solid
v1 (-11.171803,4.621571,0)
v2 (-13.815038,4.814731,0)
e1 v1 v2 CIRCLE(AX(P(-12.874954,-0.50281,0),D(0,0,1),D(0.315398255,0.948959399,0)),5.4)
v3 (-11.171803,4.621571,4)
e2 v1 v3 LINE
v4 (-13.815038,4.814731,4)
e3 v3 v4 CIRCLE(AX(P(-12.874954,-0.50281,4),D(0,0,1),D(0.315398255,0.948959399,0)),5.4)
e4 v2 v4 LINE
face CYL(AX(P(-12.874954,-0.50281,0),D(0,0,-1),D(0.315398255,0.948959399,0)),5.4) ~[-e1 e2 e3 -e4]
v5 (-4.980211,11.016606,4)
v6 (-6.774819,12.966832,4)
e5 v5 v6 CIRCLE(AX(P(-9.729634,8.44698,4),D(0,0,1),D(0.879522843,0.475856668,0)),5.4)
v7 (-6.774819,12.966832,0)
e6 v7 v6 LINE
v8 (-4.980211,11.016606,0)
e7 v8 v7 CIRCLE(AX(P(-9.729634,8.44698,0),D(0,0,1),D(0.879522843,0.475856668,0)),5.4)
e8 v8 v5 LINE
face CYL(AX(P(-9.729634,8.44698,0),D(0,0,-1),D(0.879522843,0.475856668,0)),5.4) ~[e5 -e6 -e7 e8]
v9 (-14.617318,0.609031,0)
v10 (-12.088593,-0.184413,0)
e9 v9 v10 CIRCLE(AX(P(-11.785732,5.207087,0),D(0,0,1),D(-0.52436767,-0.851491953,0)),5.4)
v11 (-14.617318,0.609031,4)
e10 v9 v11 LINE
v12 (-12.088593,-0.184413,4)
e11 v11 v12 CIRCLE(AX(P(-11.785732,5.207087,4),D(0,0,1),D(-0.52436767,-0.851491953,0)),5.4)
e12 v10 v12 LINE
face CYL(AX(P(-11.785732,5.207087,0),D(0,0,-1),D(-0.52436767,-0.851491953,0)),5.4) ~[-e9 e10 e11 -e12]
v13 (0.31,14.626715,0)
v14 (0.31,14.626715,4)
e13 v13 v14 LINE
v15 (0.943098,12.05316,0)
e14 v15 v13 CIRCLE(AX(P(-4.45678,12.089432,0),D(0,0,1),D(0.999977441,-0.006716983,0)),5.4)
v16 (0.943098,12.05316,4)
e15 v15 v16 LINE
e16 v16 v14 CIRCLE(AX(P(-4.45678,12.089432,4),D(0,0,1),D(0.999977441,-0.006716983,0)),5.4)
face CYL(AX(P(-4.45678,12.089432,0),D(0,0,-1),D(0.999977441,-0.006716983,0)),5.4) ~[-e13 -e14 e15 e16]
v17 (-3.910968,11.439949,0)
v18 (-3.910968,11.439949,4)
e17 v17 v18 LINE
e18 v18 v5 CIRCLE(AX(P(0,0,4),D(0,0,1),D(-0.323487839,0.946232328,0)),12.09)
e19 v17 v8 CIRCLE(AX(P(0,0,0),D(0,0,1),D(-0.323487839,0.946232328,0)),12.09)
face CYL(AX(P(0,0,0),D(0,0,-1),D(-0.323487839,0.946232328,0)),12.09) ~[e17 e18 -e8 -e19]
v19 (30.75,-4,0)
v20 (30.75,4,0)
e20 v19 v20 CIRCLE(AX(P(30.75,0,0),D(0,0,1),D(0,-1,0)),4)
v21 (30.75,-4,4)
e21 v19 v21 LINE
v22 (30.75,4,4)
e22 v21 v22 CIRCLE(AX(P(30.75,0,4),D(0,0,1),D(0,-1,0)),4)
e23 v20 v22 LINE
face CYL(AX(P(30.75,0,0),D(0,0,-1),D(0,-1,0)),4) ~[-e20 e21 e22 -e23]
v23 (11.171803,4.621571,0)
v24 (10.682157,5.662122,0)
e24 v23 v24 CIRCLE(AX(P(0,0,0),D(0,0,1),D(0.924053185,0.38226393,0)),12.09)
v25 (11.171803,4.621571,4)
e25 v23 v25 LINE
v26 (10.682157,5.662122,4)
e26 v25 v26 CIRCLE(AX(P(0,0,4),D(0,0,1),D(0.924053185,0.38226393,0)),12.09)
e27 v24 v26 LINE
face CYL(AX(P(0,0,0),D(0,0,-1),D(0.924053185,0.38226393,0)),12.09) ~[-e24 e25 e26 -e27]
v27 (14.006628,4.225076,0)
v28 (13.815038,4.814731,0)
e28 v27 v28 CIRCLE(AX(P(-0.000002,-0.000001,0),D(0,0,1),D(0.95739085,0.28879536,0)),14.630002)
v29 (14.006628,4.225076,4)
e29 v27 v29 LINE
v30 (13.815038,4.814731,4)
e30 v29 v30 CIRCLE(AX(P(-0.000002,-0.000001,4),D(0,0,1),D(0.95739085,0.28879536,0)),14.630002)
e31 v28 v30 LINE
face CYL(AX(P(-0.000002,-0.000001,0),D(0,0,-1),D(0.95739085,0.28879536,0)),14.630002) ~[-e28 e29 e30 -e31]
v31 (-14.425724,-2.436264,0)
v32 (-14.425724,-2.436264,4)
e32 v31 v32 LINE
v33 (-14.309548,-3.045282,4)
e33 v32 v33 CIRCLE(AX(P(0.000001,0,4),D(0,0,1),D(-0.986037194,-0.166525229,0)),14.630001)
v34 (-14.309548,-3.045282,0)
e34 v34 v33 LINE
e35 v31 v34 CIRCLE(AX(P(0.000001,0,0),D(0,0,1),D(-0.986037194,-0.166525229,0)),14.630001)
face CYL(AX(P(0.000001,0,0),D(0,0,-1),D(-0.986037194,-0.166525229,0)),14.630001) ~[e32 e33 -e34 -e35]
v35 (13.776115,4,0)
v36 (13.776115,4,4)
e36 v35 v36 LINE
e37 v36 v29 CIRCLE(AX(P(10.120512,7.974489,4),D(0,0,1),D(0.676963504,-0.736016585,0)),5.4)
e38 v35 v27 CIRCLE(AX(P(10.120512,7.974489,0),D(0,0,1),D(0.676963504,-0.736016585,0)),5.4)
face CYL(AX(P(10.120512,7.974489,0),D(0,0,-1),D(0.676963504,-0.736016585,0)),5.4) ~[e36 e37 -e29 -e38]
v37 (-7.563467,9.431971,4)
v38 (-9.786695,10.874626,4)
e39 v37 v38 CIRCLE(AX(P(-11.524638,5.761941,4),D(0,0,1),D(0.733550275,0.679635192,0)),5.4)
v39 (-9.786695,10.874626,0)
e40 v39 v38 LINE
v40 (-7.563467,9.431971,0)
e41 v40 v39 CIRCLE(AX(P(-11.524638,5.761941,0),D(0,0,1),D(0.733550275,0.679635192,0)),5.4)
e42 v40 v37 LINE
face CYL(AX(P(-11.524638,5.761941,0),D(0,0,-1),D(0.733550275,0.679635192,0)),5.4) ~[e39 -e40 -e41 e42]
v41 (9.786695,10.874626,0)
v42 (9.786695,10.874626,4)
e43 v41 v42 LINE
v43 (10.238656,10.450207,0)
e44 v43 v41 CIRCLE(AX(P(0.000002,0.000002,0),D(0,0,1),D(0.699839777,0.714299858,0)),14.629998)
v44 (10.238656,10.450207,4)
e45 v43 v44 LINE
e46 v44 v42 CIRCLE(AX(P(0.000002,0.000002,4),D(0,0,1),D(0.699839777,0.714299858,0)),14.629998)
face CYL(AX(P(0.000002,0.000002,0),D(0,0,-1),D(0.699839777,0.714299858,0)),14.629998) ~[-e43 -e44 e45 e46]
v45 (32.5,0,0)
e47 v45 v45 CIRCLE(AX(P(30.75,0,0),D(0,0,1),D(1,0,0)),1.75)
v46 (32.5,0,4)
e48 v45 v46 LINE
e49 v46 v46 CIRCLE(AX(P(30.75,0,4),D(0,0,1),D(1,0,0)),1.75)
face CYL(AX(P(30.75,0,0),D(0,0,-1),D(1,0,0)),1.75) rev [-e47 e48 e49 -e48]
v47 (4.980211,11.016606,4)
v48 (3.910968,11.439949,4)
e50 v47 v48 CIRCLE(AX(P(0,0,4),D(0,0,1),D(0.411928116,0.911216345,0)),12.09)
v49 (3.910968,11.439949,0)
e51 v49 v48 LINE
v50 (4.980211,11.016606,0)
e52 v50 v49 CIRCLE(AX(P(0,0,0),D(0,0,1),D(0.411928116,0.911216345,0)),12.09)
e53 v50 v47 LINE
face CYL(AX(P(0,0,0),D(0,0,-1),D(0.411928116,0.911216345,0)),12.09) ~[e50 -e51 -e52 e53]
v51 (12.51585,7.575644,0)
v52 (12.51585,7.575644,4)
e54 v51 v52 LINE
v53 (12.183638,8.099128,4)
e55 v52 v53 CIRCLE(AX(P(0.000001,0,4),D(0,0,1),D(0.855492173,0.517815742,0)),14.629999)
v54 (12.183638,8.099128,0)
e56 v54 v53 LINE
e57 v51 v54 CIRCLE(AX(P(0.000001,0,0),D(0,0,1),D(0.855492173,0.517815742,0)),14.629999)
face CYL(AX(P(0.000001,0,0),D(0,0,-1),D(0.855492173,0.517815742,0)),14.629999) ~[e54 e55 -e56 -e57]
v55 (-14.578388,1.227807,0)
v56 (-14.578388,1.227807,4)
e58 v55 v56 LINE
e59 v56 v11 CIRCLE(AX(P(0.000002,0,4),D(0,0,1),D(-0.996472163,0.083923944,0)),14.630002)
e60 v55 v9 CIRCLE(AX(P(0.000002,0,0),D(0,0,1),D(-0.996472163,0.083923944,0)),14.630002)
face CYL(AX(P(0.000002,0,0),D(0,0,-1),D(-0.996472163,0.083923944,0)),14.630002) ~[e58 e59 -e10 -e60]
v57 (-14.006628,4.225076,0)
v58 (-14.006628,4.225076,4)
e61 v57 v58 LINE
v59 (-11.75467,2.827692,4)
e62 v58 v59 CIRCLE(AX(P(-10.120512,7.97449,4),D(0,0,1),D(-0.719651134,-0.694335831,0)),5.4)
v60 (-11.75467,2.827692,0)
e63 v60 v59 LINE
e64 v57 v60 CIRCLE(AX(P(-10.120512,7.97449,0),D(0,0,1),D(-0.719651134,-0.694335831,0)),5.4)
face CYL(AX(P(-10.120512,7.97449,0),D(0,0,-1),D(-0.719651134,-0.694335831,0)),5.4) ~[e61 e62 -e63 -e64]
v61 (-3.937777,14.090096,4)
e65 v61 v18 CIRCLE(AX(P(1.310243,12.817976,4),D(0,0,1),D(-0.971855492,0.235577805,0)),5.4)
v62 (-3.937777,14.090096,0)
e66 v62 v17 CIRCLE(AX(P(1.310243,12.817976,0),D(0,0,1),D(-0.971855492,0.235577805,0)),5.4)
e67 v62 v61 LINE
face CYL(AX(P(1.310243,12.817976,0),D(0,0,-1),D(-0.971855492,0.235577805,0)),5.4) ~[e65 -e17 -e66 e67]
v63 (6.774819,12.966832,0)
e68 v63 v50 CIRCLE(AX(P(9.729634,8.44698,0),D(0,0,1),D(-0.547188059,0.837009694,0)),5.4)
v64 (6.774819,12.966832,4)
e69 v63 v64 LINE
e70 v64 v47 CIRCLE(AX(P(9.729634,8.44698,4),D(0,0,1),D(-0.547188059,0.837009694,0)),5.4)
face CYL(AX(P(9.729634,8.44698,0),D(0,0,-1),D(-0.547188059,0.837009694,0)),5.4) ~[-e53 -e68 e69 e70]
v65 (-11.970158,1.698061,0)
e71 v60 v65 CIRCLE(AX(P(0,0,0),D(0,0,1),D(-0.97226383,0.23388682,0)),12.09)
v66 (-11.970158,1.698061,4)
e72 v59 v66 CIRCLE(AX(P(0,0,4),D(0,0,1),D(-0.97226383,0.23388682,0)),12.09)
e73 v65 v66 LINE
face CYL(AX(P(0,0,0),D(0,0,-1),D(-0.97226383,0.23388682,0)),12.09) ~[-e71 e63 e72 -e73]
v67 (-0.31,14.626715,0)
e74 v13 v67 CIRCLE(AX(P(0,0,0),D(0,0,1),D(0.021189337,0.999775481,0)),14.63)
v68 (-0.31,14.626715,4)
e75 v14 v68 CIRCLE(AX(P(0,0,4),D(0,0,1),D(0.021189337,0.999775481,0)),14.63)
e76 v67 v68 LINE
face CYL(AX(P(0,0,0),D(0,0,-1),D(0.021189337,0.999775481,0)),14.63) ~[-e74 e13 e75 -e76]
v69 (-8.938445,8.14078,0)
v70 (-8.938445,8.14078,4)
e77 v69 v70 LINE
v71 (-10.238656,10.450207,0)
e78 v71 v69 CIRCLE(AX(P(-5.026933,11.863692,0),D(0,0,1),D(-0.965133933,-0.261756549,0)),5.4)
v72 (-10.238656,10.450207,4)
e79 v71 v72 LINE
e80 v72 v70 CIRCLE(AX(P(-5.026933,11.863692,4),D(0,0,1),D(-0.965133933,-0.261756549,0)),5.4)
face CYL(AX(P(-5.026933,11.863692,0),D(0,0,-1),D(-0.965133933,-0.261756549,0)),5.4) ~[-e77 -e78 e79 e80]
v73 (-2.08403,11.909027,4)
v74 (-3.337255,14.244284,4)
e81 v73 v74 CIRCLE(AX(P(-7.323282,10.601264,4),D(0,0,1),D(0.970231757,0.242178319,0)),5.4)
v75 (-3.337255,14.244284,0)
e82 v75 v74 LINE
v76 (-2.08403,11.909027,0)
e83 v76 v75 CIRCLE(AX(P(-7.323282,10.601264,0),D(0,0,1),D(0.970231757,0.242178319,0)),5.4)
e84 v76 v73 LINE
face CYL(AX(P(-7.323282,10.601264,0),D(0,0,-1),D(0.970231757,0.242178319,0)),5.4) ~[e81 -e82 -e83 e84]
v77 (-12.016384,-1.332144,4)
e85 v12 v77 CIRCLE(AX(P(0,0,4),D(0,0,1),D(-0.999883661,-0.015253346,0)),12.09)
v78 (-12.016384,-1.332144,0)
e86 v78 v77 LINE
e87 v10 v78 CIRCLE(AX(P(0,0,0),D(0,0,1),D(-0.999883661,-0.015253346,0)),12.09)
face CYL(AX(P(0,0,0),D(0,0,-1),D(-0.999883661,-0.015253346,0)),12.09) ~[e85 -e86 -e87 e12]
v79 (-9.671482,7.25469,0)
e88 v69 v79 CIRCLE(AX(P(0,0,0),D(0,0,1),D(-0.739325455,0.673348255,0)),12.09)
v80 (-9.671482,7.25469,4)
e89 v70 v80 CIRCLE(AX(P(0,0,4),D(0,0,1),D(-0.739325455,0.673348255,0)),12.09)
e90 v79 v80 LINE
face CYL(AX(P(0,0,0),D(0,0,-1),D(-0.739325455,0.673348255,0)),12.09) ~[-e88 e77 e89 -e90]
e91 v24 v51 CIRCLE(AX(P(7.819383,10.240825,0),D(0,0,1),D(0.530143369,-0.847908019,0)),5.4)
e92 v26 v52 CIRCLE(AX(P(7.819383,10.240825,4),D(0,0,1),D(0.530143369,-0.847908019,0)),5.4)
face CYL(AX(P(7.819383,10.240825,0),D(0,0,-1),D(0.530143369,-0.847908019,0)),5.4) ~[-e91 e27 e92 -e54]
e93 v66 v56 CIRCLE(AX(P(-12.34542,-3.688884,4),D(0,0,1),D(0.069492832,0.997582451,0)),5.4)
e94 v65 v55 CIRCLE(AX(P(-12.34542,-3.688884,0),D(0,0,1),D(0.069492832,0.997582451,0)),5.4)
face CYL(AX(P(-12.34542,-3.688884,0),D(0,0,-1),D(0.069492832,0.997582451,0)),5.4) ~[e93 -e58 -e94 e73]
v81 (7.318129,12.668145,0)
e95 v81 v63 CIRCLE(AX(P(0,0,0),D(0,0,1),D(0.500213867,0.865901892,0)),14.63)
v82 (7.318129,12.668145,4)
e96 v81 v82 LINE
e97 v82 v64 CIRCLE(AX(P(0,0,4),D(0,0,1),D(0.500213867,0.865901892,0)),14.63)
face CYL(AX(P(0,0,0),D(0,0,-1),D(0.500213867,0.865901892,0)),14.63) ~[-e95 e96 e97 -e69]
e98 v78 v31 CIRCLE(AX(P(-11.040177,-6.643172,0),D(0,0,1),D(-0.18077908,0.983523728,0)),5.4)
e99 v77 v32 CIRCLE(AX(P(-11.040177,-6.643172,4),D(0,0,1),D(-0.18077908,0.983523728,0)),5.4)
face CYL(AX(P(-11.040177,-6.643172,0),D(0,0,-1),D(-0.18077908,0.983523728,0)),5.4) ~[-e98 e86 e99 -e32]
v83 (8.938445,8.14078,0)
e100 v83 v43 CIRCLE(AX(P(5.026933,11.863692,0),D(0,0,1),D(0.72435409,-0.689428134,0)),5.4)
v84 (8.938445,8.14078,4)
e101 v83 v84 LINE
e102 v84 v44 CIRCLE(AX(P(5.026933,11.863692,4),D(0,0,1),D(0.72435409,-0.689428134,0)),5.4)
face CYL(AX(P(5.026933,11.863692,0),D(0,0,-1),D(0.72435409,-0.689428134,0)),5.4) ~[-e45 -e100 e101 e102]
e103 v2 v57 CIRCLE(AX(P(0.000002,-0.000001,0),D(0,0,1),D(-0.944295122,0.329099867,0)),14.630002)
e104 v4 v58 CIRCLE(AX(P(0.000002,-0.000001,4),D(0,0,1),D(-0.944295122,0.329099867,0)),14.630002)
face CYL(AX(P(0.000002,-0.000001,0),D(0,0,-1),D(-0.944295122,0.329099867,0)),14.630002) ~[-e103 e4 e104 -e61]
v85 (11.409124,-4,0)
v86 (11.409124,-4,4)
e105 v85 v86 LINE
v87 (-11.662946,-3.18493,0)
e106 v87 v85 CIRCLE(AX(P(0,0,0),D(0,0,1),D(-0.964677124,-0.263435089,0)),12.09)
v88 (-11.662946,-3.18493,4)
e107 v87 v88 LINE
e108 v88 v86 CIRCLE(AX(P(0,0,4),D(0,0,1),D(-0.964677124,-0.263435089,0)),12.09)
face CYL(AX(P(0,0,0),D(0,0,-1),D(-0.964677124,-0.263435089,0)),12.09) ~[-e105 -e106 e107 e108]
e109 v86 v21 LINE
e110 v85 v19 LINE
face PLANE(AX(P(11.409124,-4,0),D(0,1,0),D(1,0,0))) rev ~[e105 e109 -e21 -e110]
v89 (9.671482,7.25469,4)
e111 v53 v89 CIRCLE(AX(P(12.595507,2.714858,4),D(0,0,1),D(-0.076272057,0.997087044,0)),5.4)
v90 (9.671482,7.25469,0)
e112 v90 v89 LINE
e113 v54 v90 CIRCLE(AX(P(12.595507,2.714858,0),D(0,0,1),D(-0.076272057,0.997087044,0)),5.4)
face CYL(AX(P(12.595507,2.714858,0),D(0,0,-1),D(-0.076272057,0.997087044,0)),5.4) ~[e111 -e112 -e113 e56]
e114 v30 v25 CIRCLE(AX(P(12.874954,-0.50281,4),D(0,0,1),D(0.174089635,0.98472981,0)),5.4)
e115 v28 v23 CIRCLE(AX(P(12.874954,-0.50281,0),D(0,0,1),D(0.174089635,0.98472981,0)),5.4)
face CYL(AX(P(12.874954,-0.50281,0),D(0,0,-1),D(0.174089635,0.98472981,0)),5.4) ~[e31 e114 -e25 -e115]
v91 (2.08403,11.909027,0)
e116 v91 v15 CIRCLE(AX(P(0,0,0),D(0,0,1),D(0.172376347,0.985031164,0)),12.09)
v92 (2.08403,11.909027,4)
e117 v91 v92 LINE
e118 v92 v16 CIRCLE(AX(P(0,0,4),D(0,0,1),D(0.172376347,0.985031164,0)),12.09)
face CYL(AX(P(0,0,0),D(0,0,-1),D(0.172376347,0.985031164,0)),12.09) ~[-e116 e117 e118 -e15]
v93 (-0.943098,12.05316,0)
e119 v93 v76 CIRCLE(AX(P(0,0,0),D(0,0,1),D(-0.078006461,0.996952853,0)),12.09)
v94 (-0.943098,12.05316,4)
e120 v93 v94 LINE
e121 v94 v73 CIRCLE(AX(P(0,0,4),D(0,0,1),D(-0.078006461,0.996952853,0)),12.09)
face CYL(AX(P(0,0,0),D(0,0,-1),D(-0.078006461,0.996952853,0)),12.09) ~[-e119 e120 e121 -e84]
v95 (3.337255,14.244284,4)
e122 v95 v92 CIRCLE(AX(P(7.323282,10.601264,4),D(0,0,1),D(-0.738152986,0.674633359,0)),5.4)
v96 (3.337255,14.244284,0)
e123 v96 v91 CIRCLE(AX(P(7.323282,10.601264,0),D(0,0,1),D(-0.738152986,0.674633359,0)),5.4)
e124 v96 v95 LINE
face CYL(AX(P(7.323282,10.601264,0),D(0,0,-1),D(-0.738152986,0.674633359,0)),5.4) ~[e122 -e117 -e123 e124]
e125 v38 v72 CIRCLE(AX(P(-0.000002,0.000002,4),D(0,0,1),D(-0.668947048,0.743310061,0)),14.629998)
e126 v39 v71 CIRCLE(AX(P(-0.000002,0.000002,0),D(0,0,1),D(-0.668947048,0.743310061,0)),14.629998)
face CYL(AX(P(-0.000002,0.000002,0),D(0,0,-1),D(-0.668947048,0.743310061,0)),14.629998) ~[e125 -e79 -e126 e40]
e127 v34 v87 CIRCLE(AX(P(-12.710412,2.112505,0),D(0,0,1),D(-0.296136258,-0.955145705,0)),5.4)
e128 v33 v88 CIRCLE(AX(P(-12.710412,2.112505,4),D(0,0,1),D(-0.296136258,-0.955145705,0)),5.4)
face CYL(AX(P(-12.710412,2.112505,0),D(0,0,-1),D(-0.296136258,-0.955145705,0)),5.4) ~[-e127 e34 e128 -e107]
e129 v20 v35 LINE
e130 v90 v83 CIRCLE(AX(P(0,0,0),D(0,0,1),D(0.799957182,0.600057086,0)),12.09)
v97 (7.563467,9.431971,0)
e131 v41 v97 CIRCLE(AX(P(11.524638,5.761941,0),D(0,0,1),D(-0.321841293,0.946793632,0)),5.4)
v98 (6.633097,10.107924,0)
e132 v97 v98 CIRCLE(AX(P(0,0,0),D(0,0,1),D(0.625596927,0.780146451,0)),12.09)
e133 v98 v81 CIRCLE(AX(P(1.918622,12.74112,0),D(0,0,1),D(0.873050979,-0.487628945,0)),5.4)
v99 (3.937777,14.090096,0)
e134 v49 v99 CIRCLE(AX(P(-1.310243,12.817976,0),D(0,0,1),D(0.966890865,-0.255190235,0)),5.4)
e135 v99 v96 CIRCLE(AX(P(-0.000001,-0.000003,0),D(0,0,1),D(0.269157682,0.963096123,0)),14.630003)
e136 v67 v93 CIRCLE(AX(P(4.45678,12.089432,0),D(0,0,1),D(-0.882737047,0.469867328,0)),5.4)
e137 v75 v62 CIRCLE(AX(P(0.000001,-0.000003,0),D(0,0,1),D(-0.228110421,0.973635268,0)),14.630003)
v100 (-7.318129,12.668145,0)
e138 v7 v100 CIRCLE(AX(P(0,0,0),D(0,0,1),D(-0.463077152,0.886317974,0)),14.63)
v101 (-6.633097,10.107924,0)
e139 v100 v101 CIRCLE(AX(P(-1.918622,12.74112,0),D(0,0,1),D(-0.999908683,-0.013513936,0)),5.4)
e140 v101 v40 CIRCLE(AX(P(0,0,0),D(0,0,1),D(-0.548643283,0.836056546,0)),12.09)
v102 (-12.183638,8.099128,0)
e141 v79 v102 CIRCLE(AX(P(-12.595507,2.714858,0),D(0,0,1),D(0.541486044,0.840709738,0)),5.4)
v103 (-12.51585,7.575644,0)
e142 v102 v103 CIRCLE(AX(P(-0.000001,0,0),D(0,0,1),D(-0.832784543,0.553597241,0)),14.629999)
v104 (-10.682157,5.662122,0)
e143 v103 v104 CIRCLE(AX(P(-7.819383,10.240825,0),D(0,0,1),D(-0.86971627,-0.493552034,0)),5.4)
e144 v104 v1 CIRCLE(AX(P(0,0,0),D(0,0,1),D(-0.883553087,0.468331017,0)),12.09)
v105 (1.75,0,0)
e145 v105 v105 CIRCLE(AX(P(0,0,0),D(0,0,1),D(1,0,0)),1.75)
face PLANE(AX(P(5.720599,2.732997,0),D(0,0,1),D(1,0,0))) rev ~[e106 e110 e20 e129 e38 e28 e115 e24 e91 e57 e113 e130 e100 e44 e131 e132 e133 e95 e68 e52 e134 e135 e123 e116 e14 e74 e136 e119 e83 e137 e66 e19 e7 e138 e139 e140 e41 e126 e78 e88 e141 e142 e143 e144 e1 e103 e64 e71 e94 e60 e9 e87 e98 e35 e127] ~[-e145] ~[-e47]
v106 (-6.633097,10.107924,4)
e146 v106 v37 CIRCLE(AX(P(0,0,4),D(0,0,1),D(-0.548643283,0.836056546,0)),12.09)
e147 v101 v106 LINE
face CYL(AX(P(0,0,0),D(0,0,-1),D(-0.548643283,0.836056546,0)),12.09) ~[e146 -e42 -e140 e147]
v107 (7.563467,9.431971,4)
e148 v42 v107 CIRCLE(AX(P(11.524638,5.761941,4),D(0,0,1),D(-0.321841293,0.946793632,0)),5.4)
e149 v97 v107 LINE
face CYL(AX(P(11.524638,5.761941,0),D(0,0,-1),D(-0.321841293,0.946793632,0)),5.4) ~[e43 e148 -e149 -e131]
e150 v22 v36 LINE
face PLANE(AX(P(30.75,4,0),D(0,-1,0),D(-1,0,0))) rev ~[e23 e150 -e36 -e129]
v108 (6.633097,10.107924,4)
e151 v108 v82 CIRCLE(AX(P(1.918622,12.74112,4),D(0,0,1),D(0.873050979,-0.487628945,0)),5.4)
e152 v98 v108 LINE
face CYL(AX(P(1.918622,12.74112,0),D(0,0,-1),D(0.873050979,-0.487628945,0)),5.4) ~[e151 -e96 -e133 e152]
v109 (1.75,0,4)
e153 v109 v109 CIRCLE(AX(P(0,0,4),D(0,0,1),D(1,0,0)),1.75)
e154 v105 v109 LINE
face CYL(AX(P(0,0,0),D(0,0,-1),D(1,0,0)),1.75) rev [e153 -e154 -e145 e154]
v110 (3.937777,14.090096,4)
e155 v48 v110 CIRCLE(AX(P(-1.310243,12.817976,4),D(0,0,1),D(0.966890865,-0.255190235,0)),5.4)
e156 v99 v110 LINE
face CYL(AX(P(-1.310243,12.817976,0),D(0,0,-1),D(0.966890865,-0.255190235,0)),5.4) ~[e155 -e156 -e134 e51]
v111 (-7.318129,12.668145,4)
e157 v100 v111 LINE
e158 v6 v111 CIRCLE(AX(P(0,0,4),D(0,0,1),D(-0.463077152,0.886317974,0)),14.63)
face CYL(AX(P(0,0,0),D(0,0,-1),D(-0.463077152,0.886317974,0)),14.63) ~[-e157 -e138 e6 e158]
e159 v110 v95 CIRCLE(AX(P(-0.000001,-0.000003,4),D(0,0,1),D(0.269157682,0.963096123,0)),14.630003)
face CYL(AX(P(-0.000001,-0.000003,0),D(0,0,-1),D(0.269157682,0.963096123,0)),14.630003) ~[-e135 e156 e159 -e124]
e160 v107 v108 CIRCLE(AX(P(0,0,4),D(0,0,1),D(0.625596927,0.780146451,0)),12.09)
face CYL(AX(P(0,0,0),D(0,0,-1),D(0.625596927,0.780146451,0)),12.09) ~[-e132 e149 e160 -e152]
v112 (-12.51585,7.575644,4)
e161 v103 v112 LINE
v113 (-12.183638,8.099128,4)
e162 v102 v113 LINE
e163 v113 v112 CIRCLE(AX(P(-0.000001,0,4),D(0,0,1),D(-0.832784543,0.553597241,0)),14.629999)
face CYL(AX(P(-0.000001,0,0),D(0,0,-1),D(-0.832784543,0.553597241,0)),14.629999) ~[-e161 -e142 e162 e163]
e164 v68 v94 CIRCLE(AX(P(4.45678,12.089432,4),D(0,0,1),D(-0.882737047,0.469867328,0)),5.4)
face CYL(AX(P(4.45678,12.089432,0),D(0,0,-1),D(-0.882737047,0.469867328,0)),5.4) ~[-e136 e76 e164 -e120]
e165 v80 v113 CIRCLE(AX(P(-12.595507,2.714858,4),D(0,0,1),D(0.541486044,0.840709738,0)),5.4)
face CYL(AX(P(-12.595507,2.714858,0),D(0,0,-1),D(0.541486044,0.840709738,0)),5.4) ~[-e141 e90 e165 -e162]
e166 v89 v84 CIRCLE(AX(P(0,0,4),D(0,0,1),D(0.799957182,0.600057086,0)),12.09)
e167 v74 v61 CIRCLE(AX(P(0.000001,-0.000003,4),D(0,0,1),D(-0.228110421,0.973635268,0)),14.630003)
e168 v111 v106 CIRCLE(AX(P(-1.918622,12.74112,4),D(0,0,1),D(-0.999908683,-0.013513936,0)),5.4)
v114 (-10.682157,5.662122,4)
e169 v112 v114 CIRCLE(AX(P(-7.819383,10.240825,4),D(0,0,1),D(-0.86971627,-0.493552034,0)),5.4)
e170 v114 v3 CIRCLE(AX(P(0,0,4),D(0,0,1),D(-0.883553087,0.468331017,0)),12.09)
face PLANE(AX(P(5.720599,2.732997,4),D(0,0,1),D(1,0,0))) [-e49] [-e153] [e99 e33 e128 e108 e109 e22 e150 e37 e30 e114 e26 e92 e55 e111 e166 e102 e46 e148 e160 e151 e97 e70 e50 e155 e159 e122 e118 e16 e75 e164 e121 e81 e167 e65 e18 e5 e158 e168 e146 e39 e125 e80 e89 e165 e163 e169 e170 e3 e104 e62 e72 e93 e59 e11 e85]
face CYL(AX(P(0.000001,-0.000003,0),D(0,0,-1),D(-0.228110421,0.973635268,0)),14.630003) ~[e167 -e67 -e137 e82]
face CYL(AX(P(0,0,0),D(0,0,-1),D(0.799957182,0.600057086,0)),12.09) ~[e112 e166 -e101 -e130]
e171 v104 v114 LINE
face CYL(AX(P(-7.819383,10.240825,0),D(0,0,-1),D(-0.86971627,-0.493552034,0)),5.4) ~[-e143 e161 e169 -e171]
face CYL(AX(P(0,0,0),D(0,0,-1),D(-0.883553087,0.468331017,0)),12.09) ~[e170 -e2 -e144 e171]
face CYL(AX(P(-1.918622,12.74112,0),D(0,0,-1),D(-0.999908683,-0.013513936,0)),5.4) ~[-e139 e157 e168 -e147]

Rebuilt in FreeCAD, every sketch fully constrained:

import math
import FreeCAD as App
import Part
import Sketcher

V = App.Vector
Q = App.Units.Quantity

doc = App.newDocument("Part")
params = doc.addObject("Spreadsheet::Sheet", "Params")
for row, (alias, value) in enumerate([
    ("sketch1_radius", "4 mm"),
    ("sketch1_diameter", "3.5 mm"),
    ("sketch1_radius2", "5.4 mm"),
    ("sketch1_radius3", "12.09 mm"),
    ("sketch1_radius4", "14.629999 mm"),
    ("pad1_length", "4 mm"),
], start=1):
    params.set(f"A{row}", alias)
    params.set(f"B{row}", "=" + value)
    params.setAlias(f"B{row}", alias)

body = doc.addObject("PartDesign::Body", "Body")

# Sketch on XY plane
sketch1 = body.newObject("Sketcher::SketchObject", "Sketch")
sketch1.AttachmentSupport = (doc.getObject("XY_Plane"), [""])
sketch1.MapMode = "FlatFace"
sketch1.addGeometry(Part.ArcOfCircle(Part.Circle(V(10.120512, 7.974489, 0), V(0, 0, 1), 5.4), math.radians(-47.393186), math.radians(-43.974315)), False)
sketch1.addGeometry(Part.ArcOfCircle(Part.Circle(V(-0.000002, -0.000001, 0), V(0, 0, 1), 14.630002), math.radians(16.78585), math.radians(19.21415)), False)
sketch1.addGeometry(Part.ArcOfCircle(Part.Circle(V(12.874954, -0.50281, 0), V(0, 0, 1), 5.4), math.radians(79.974315), math.radians(108.384858)), False)
sketch1.addGeometry(Part.ArcOfCircle(Part.Circle(V(0, 0, 0), V(0, 0, 1), 12.09), math.radians(22.473986), math.radians(27.926014)), False)
sketch1.addGeometry(Part.ArcOfCircle(Part.Circle(V(7.819383, 10.240825, 0), V(0, 0, 1), 5.4), math.radians(-57.984858), math.radians(-29.574315)), False)
sketch1.addGeometry(Part.ArcOfCircle(Part.Circle(V(0.000001, 0, 0), V(0, 0, 1), 14.629999), math.radians(31.185849), math.radians(33.614151)), False)
sketch1.addGeometry(Part.ArcOfCircle(Part.Circle(V(12.595507, 2.714858, 0), V(0, 0, 1), 5.4), math.radians(94.374315), math.radians(122.784858)), False)
sketch1.addGeometry(Part.ArcOfCircle(Part.Circle(V(0, 0, 0), V(0, 0, 1), 12.09), math.radians(36.873986), math.radians(42.326014)), False)
sketch1.addGeometry(Part.ArcOfCircle(Part.Circle(V(5.026933, 11.863692, 0), V(0, 0, 1), 5.4), math.radians(-43.584858), math.radians(-15.174315)), False)
sketch1.addGeometry(Part.ArcOfCircle(Part.Circle(V(0.000002, 0.000002, 0), V(0, 0, 1), 14.629998), math.radians(45.585849), math.radians(48.014151)), False)
sketch1.addGeometry(Part.ArcOfCircle(Part.Circle(V(11.524638, 5.761941, 0), V(0, 0, 1), 5.4), math.radians(108.774315), math.radians(137.184858)), False)
sketch1.addGeometry(Part.ArcOfCircle(Part.Circle(V(0, 0, 0), V(0, 0, 1), 12.09), math.radians(51.273986), math.radians(56.726014)), False)
sketch1.addGeometry(Part.ArcOfCircle(Part.Circle(V(1.918622, 12.74112, 0), V(0, 0, 1), 5.4), math.radians(-29.184858), math.radians(-0.774315)), False)
sketch1.addGeometry(Part.ArcOfCircle(Part.Circle(V(0, 0, 0), V(0, 0, 1), 14.63), math.radians(59.98585), math.radians(62.414151)), False)
sketch1.addGeometry(Part.ArcOfCircle(Part.Circle(V(9.729634, 8.44698, 0), V(0, 0, 1), 5.4), math.radians(123.174315), math.radians(151.584858)), False)
sketch1.addGeometry(Part.ArcOfCircle(Part.Circle(V(0, 0, 0), V(0, 0, 1), 12.09), math.radians(65.673986), math.radians(71.126014)), False)
sketch1.addGeometry(Part.ArcOfCircle(Part.Circle(V(-1.310243, 12.817976, 0), V(0, 0, 1), 5.4), math.radians(-14.784858), math.radians(13.625685)), False)
sketch1.addGeometry(Part.ArcOfCircle(Part.Circle(V(-0.000001, -0.000003, 0), V(0, 0, 1), 14.630003), math.radians(74.38585), math.radians(76.81415)), False)
sketch1.addGeometry(Part.ArcOfCircle(Part.Circle(V(7.323282, 10.601264, 0), V(0, 0, 1), 5.4), math.radians(137.574315), math.radians(165.984858)), False)
sketch1.addGeometry(Part.ArcOfCircle(Part.Circle(V(0, 0, 0), V(0, 0, 1), 12.09), math.radians(80.073986), math.radians(85.526014)), False)
sketch1.addGeometry(Part.ArcOfCircle(Part.Circle(V(-4.45678, 12.089432, 0), V(0, 0, 1), 5.4), math.radians(-0.384858), math.radians(28.025685)), False)
sketch1.addGeometry(Part.ArcOfCircle(Part.Circle(V(0, 0, 0), V(0, 0, 1), 14.63), math.radians(88.78585), math.radians(91.21415)), False)
sketch1.addGeometry(Part.ArcOfCircle(Part.Circle(V(4.45678, 12.089432, 0), V(0, 0, 1), 5.4), math.radians(151.974315), math.radians(180.384858)), False)
sketch1.addGeometry(Part.ArcOfCircle(Part.Circle(V(0, 0, 0), V(0, 0, 1), 12.09), math.radians(94.473986), math.radians(99.926014)), False)
sketch1.addGeometry(Part.ArcOfCircle(Part.Circle(V(-7.323282, 10.601264, 0), V(0, 0, 1), 5.4), math.radians(14.015142), math.radians(42.425685)), False)
sketch1.addGeometry(Part.ArcOfCircle(Part.Circle(V(0.000001, -0.000003, 0), V(0, 0, 1), 14.630003), math.radians(103.18585), math.radians(105.61415)), False)
sketch1.addGeometry(Part.ArcOfCircle(Part.Circle(V(1.310243, 12.817976, 0), V(0, 0, 1), 5.4), math.radians(166.374315), math.radians(194.784858)), False)
sketch1.addGeometry(Part.ArcOfCircle(Part.Circle(V(0, 0, 0), V(0, 0, 1), 12.09), math.radians(108.873986), math.radians(114.326014)), False)
sketch1.addGeometry(Part.ArcOfCircle(Part.Circle(V(-9.729634, 8.44698, 0), V(0, 0, 1), 5.4), math.radians(28.415142), math.radians(56.825685)), False)
sketch1.addGeometry(Part.ArcOfCircle(Part.Circle(V(0, 0, 0), V(0, 0, 1), 14.63), math.radians(117.585849), math.radians(120.01415)), False)
sketch1.addGeometry(Part.ArcOfCircle(Part.Circle(V(-1.918622, 12.74112, 0), V(0, 0, 1), 5.4), math.radians(-179.225685), math.radians(-150.815142)), False)
sketch1.addGeometry(Part.ArcOfCircle(Part.Circle(V(0, 0, 0), V(0, 0, 1), 12.09), math.radians(123.273986), math.radians(128.726014)), False)
sketch1.addGeometry(Part.ArcOfCircle(Part.Circle(V(-11.524638, 5.761941, 0), V(0, 0, 1), 5.4), math.radians(42.815142), math.radians(71.225685)), False)
sketch1.addGeometry(Part.ArcOfCircle(Part.Circle(V(-0.000002, 0.000002, 0), V(0, 0, 1), 14.629998), math.radians(131.985849), math.radians(134.414151)), False)
sketch1.addGeometry(Part.ArcOfCircle(Part.Circle(V(-5.026933, 11.863692, 0), V(0, 0, 1), 5.4), math.radians(-164.825685), math.radians(-136.415142)), False)
sketch1.addGeometry(Part.ArcOfCircle(Part.Circle(V(0, 0, 0), V(0, 0, 1), 12.09), math.radians(137.673986), math.radians(143.126014)), False)
sketch1.addGeometry(Part.ArcOfCircle(Part.Circle(V(-12.595507, 2.714858, 0), V(0, 0, 1), 5.4), math.radians(57.215142), math.radians(85.625685)), False)
sketch1.addGeometry(Part.ArcOfCircle(Part.Circle(V(-0.000001, 0, 0), V(0, 0, 1), 14.629999), math.radians(146.385849), math.radians(148.814151)), False)
sketch1.addGeometry(Part.ArcOfCircle(Part.Circle(V(-7.819383, 10.240825, 0), V(0, 0, 1), 5.4), math.radians(-150.425685), math.radians(-122.015142)), False)
sketch1.addGeometry(Part.ArcOfCircle(Part.Circle(V(0, 0, 0), V(0, 0, 1), 12.09), math.radians(152.073986), math.radians(157.526014)), False)
sketch1.addGeometry(Part.ArcOfCircle(Part.Circle(V(-12.874954, -0.50281, 0), V(0, 0, 1), 5.4), math.radians(71.615142), math.radians(100.025685)), False)
sketch1.addGeometry(Part.ArcOfCircle(Part.Circle(V(0.000002, -0.000001, 0), V(0, 0, 1), 14.630002), math.radians(160.78585), math.radians(163.21415)), False)
sketch1.addGeometry(Part.ArcOfCircle(Part.Circle(V(-10.120512, 7.97449, 0), V(0, 0, 1), 5.4), math.radians(-136.025685), math.radians(-107.615142)), False)
sketch1.addGeometry(Part.ArcOfCircle(Part.Circle(V(0, 0, 0), V(0, 0, 1), 12.09), math.radians(166.473986), math.radians(171.926014)), False)
sketch1.addGeometry(Part.ArcOfCircle(Part.Circle(V(-12.34542, -3.688884, 0), V(0, 0, 1), 5.4), math.radians(86.015142), math.radians(114.425685)), False)
sketch1.addGeometry(Part.ArcOfCircle(Part.Circle(V(0.000002, 0, 0), V(0, 0, 1), 14.630002), math.radians(175.18585), math.radians(177.61415)), False)
sketch1.addGeometry(Part.ArcOfCircle(Part.Circle(V(-11.785732, 5.207087, 0), V(0, 0, 1), 5.4), math.radians(-121.625685), math.radians(-93.215142)), False)
sketch1.addGeometry(Part.ArcOfCircle(Part.Circle(V(0, 0, 0), V(0, 0, 1), 12.09), math.radians(-179.126014), math.radians(-173.673986)), False)
sketch1.addGeometry(Part.ArcOfCircle(Part.Circle(V(-11.040177, -6.643172, 0), V(0, 0, 1), 5.4), math.radians(100.415142), math.radians(128.825685)), False)
sketch1.addGeometry(Part.ArcOfCircle(Part.Circle(V(0.000001, 0, 0), V(0, 0, 1), 14.630001), math.radians(-170.41415), math.radians(-167.98585)), False)
sketch1.addGeometry(Part.ArcOfCircle(Part.Circle(V(-12.710412, 2.112505, 0), V(0, 0, 1), 5.4), math.radians(-107.225685), math.radians(-78.815142)), False)
sketch1.addGeometry(Part.ArcOfCircle(Part.Circle(V(0, 0, 0), V(0, 0, 1), 12.09), math.radians(-164.726014), math.radians(-19.320493)), False)
sketch1.addGeometry(Part.LineSegment(V(11.409124, -4, 0), V(30.75, -4, 0)), False)
sketch1.addGeometry(Part.ArcOfCircle(Part.Circle(V(30.75, 0, 0), V(0, 0, 1), 4), math.radians(-90), math.radians(90)), False)
sketch1.addGeometry(Part.LineSegment(V(30.75, 4, 0), V(13.776115, 4, 0)), False)
sketch1.addGeometry(Part.Circle(V(0, 0, 0), V(0, 0, 1), 1.75), False)
sketch1.addGeometry(Part.Circle(V(30.75, 0, 0), V(0, 0, 1), 1.75), False)
sketch1.addConstraint(Sketcher.Constraint("Coincident", 0, 2, 1, 1))
sketch1.addConstraint(Sketcher.Constraint("Coincident", 1, 2, 2, 1))
sketch1.addConstraint(Sketcher.Constraint("Coincident", 2, 2, 3, 1))
sketch1.addConstraint(Sketcher.Constraint("Coincident", 3, 2, 4, 1))
sketch1.addConstraint(Sketcher.Constraint("Coincident", 4, 2, 5, 1))
sketch1.addConstraint(Sketcher.Constraint("Coincident", 5, 2, 6, 1))
sketch1.addConstraint(Sketcher.Constraint("Coincident", 6, 2, 7, 1))
sketch1.addConstraint(Sketcher.Constraint("Coincident", 7, 2, 8, 1))
sketch1.addConstraint(Sketcher.Constraint("Coincident", 8, 2, 9, 1))
sketch1.addConstraint(Sketcher.Constraint("Coincident", 9, 2, 10, 1))
sketch1.addConstraint(Sketcher.Constraint("Coincident", 10, 2, 11, 1))
sketch1.addConstraint(Sketcher.Constraint("Coincident", 11, 2, 12, 1))
sketch1.addConstraint(Sketcher.Constraint("Coincident", 12, 2, 13, 1))
sketch1.addConstraint(Sketcher.Constraint("Coincident", 13, 2, 14, 1))
sketch1.addConstraint(Sketcher.Constraint("Coincident", 14, 2, 15, 1))
sketch1.addConstraint(Sketcher.Constraint("Coincident", 15, 2, 16, 1))
sketch1.addConstraint(Sketcher.Constraint("Coincident", 16, 2, 17, 1))
sketch1.addConstraint(Sketcher.Constraint("Coincident", 17, 2, 18, 1))
sketch1.addConstraint(Sketcher.Constraint("Coincident", 18, 2, 19, 1))
sketch1.addConstraint(Sketcher.Constraint("Coincident", 19, 2, 20, 1))
sketch1.addConstraint(Sketcher.Constraint("Coincident", 20, 2, 21, 1))
sketch1.addConstraint(Sketcher.Constraint("Coincident", 21, 2, 22, 1))
sketch1.addConstraint(Sketcher.Constraint("Coincident", 22, 2, 23, 1))
sketch1.addConstraint(Sketcher.Constraint("Coincident", 23, 2, 24, 1))
sketch1.addConstraint(Sketcher.Constraint("Coincident", 24, 2, 25, 1))
sketch1.addConstraint(Sketcher.Constraint("Coincident", 25, 2, 26, 1))
sketch1.addConstraint(Sketcher.Constraint("Coincident", 26, 2, 27, 1))
sketch1.addConstraint(Sketcher.Constraint("Coincident", 27, 2, 28, 1))
sketch1.addConstraint(Sketcher.Constraint("Coincident", 28, 2, 29, 1))
sketch1.addConstraint(Sketcher.Constraint("Coincident", 29, 2, 30, 1))
sketch1.addConstraint(Sketcher.Constraint("Coincident", 30, 2, 31, 1))
sketch1.addConstraint(Sketcher.Constraint("Coincident", 31, 2, 32, 1))
sketch1.addConstraint(Sketcher.Constraint("Coincident", 32, 2, 33, 1))
sketch1.addConstraint(Sketcher.Constraint("Coincident", 33, 2, 34, 1))
sketch1.addConstraint(Sketcher.Constraint("Coincident", 34, 2, 35, 1))
sketch1.addConstraint(Sketcher.Constraint("Coincident", 35, 2, 36, 1))
sketch1.addConstraint(Sketcher.Constraint("Coincident", 36, 2, 37, 1))
sketch1.addConstraint(Sketcher.Constraint("Coincident", 37, 2, 38, 1))
sketch1.addConstraint(Sketcher.Constraint("Coincident", 38, 2, 39, 1))
sketch1.addConstraint(Sketcher.Constraint("Coincident", 39, 2, 40, 1))
sketch1.addConstraint(Sketcher.Constraint("Coincident", 40, 2, 41, 1))
sketch1.addConstraint(Sketcher.Constraint("Coincident", 41, 2, 42, 1))
sketch1.addConstraint(Sketcher.Constraint("Coincident", 42, 2, 43, 1))
sketch1.addConstraint(Sketcher.Constraint("Coincident", 43, 2, 44, 1))
sketch1.addConstraint(Sketcher.Constraint("Coincident", 44, 2, 45, 1))
sketch1.addConstraint(Sketcher.Constraint("Coincident", 45, 2, 46, 1))
sketch1.addConstraint(Sketcher.Constraint("Coincident", 46, 2, 47, 1))
sketch1.addConstraint(Sketcher.Constraint("Coincident", 47, 2, 48, 1))
sketch1.addConstraint(Sketcher.Constraint("Coincident", 48, 2, 49, 1))
sketch1.addConstraint(Sketcher.Constraint("Coincident", 49, 2, 50, 1))
sketch1.addConstraint(Sketcher.Constraint("Coincident", 50, 2, 51, 1))
sketch1.addConstraint(Sketcher.Constraint("Coincident", 51, 2, 52, 1))
sketch1.addConstraint(Sketcher.Constraint("Tangent", 52, 2, 53, 1))
sketch1.addConstraint(Sketcher.Constraint("Tangent", 53, 2, 54, 1))
sketch1.addConstraint(Sketcher.Constraint("Coincident", 54, 2, 0, 1))
sketch1.addConstraint(Sketcher.Constraint("Horizontal", 52))
sketch1.addConstraint(Sketcher.Constraint("Horizontal", 54))
sketch1.addConstraint(Sketcher.Constraint("Coincident", 1, 3, -1, 1))
sketch1.addConstraint(Sketcher.Constraint("Coincident", 3, 3, -1, 1))
sketch1.addConstraint(Sketcher.Constraint("Coincident", 5, 3, -1, 1))
sketch1.addConstraint(Sketcher.Constraint("Coincident", 7, 3, -1, 1))
sketch1.addConstraint(Sketcher.Constraint("Coincident", 9, 3, -1, 1))
sketch1.addConstraint(Sketcher.Constraint("Coincident", 11, 3, -1, 1))
sketch1.addConstraint(Sketcher.Constraint("Coincident", 13, 3, -1, 1))
sketch1.addConstraint(Sketcher.Constraint("Coincident", 15, 3, -1, 1))
sketch1.addConstraint(Sketcher.Constraint("Coincident", 17, 3, -1, 1))
sketch1.addConstraint(Sketcher.Constraint("Coincident", 19, 3, -1, 1))
sketch1.addConstraint(Sketcher.Constraint("Coincident", 21, 3, -1, 1))
sketch1.addConstraint(Sketcher.Constraint("Coincident", 23, 3, -1, 1))
sketch1.addConstraint(Sketcher.Constraint("Coincident", 25, 3, -1, 1))
sketch1.addConstraint(Sketcher.Constraint("Coincident", 27, 3, -1, 1))
sketch1.addConstraint(Sketcher.Constraint("Coincident", 29, 3, -1, 1))
sketch1.addConstraint(Sketcher.Constraint("Coincident", 31, 3, -1, 1))
sketch1.addConstraint(Sketcher.Constraint("Coincident", 33, 3, -1, 1))
sketch1.addConstraint(Sketcher.Constraint("Coincident", 35, 3, -1, 1))
sketch1.addConstraint(Sketcher.Constraint("Coincident", 37, 3, -1, 1))
sketch1.addConstraint(Sketcher.Constraint("Coincident", 39, 3, -1, 1))
sketch1.addConstraint(Sketcher.Constraint("Coincident", 41, 3, -1, 1))
sketch1.addConstraint(Sketcher.Constraint("Coincident", 43, 3, -1, 1))
sketch1.addConstraint(Sketcher.Constraint("Coincident", 45, 3, -1, 1))
sketch1.addConstraint(Sketcher.Constraint("Coincident", 47, 3, -1, 1))
sketch1.addConstraint(Sketcher.Constraint("Coincident", 49, 3, -1, 1))
sketch1.addConstraint(Sketcher.Constraint("Coincident", 51, 3, -1, 1))
sketch1.addConstraint(Sketcher.Constraint("Coincident", 55, 3, -1, 1))
sketch1.addConstraint(Sketcher.Constraint("Coincident", 56, 3, 53, 3))
sketch1.addConstraint(Sketcher.Constraint("Equal", 0, 2))
sketch1.addConstraint(Sketcher.Constraint("Equal", 2, 4))
sketch1.addConstraint(Sketcher.Constraint("Equal", 4, 6))
sketch1.addConstraint(Sketcher.Constraint("Equal", 3, 7))
sketch1.addConstraint(Sketcher.Constraint("Equal", 6, 8))
sketch1.addConstraint(Sketcher.Constraint("Equal", 5, 9))
sketch1.addConstraint(Sketcher.Constraint("Equal", 8, 10))
sketch1.addConstraint(Sketcher.Constraint("Equal", 7, 11))
sketch1.addConstraint(Sketcher.Constraint("Equal", 10, 12))
sketch1.addConstraint(Sketcher.Constraint("Equal", 5, 13))
sketch1.addConstraint(Sketcher.Constraint("Equal", 12, 14))
sketch1.addConstraint(Sketcher.Constraint("Equal", 11, 15))
sketch1.addConstraint(Sketcher.Constraint("Equal", 14, 16))
sketch1.addConstraint(Sketcher.Constraint("Equal", 1, 17))
sketch1.addConstraint(Sketcher.Constraint("Equal", 16, 18))
sketch1.addConstraint(Sketcher.Constraint("Equal", 15, 19))
sketch1.addConstraint(Sketcher.Constraint("Equal", 18, 20))
sketch1.addConstraint(Sketcher.Constraint("Equal", 13, 21))
sketch1.addConstraint(Sketcher.Constraint("Equal", 20, 22))
sketch1.addConstraint(Sketcher.Constraint("Equal", 19, 23))
sketch1.addConstraint(Sketcher.Constraint("Equal", 22, 24))
sketch1.addConstraint(Sketcher.Constraint("Equal", 17, 25))
sketch1.addConstraint(Sketcher.Constraint("Equal", 24, 26))
sketch1.addConstraint(Sketcher.Constraint("Equal", 23, 27))
sketch1.addConstraint(Sketcher.Constraint("Equal", 26, 28))
sketch1.addConstraint(Sketcher.Constraint("Equal", 21, 29))
sketch1.addConstraint(Sketcher.Constraint("Equal", 28, 30))
sketch1.addConstraint(Sketcher.Constraint("Equal", 27, 31))
sketch1.addConstraint(Sketcher.Constraint("Equal", 30, 32))
sketch1.addConstraint(Sketcher.Constraint("Equal", 9, 33))
sketch1.addConstraint(Sketcher.Constraint("Equal", 32, 34))
sketch1.addConstraint(Sketcher.Constraint("Equal", 31, 35))
sketch1.addConstraint(Sketcher.Constraint("Equal", 34, 36))
sketch1.addConstraint(Sketcher.Constraint("Equal", 33, 37))
sketch1.addConstraint(Sketcher.Constraint("Equal", 36, 38))
sketch1.addConstraint(Sketcher.Constraint("Equal", 35, 39))
sketch1.addConstraint(Sketcher.Constraint("Equal", 38, 40))
sketch1.addConstraint(Sketcher.Constraint("Equal", 25, 41))
sketch1.addConstraint(Sketcher.Constraint("Equal", 40, 42))
sketch1.addConstraint(Sketcher.Constraint("Equal", 39, 43))
sketch1.addConstraint(Sketcher.Constraint("Equal", 42, 44))
sketch1.addConstraint(Sketcher.Constraint("Equal", 41, 45))
sketch1.addConstraint(Sketcher.Constraint("Equal", 44, 46))
sketch1.addConstraint(Sketcher.Constraint("Equal", 43, 47))
sketch1.addConstraint(Sketcher.Constraint("Equal", 46, 48))
sketch1.addConstraint(Sketcher.Constraint("Equal", 45, 49))
sketch1.addConstraint(Sketcher.Constraint("Equal", 48, 50))
sketch1.addConstraint(Sketcher.Constraint("Equal", 47, 51))
sketch1.addConstraint(Sketcher.Constraint("Equal", 55, 56))
sketch1.addConstraint(Sketcher.Constraint("Symmetric", 20, 3, 22, 3, -2))
sketch1.addConstraint(Sketcher.Constraint("Symmetric", 18, 3, 24, 3, -2))
sketch1.addConstraint(Sketcher.Constraint("Symmetric", 16, 3, 26, 3, -2))
sketch1.addConstraint(Sketcher.Constraint("Symmetric", 14, 3, 28, 3, -2))
sketch1.addConstraint(Sketcher.Constraint("Symmetric", 12, 3, 30, 3, -2))
sketch1.addConstraint(Sketcher.Constraint("Symmetric", 10, 3, 32, 3, -2))
sketch1.addConstraint(Sketcher.Constraint("Symmetric", 8, 3, 34, 3, -2))
sketch1.addConstraint(Sketcher.Constraint("Symmetric", 6, 3, 36, 3, -2))
sketch1.addConstraint(Sketcher.Constraint("Symmetric", 4, 3, 38, 3, -2))
sketch1.addConstraint(Sketcher.Constraint("Symmetric", 2, 3, 40, 3, -2))
sketch1.addConstraint(Sketcher.Constraint("Symmetric", 0, 3, 42, 3, -2))
sketch1.addConstraint(Sketcher.Constraint("PointOnObject", 53, 3, -1))
sketch1.addConstraint(Sketcher.Constraint("Radius", 53, Q("4 mm")))
sketch1.addConstraint(Sketcher.Constraint("Diameter", 55, Q("3.5 mm")))
sketch1.addConstraint(Sketcher.Constraint("Radius", 0, Q("5.4 mm")))
sketch1.addConstraint(Sketcher.Constraint("Radius", 3, Q("12.09 mm")))
sketch1.addConstraint(Sketcher.Constraint("Radius", 5, Q("14.629999 mm")))
sketch1.addConstraint(Sketcher.Constraint("Radius", 45, Q("14.630002 mm")))
sketch1.addConstraint(Sketcher.Constraint("DistanceX", -1, 1, 53, 3, Q("30.75 mm")))
sketch1.addConstraint(Sketcher.Constraint("DistanceX", -1, 1, 20, 2, Q("0.31 mm")))
sketch1.addConstraint(Sketcher.Constraint("DistanceX", -1, 1, 19, 2, Q("0.943098 mm")))
sketch1.addConstraint(Sketcher.Constraint("DistanceX", 54, 2, 54, 1, Q("16.973885 mm")))
sketch1.addConstraint(Sketcher.Constraint("DistanceY", -1, 1, 0, 3, Q("7.974489 mm")))
sketch1.addConstraint(Sketcher.Constraint("DistanceY", 2, 3, -1, 1, Q("0.50281 mm")))
sketch1.addConstraint(Sketcher.Constraint("DistanceX", -1, 1, 10, 3, Q("11.524638 mm")))
sketch1.addConstraint(Sketcher.Constraint("DistanceY", -1, 1, 10, 3, Q("5.761941 mm")))
sketch1.addConstraint(Sketcher.Constraint("DistanceY", -1, 1, 12, 3, Q("12.74112 mm")))
sketch1.addConstraint(Sketcher.Constraint("DistanceY", -1, 1, 14, 3, Q("8.44698 mm")))
sketch1.addConstraint(Sketcher.Constraint("DistanceX", -1, 1, 18, 3, Q("7.323282 mm")))
sketch1.addConstraint(Sketcher.Constraint("DistanceX", 44, 3, -1, 1, Q("12.34542 mm")))
sketch1.addConstraint(Sketcher.Constraint("DistanceY", 48, 3, -1, 1, Q("6.643172 mm")))
sketch1.addConstraint(Sketcher.Constraint("DistanceX", 50, 3, -1, 1, Q("12.710412 mm")))
sketch1.addConstraint(Sketcher.Constraint("DistanceY", -1, 1, 1, 2, Q("4.814731 mm")))
sketch1.addConstraint(Sketcher.Constraint("DistanceX", -1, 1, 4, 2, Q("12.51585 mm")))
sketch1.addConstraint(Sketcher.Constraint("DistanceY", -1, 1, 6, 2, Q("7.25469 mm")))
sketch1.addConstraint(Sketcher.Constraint("DistanceY", -1, 1, 7, 2, Q("8.14078 mm")))
sketch1.addConstraint(Sketcher.Constraint("DistanceX", -1, 1, 12, 2, Q("7.318129 mm")))
sketch1.addConstraint(Sketcher.Constraint("DistanceX", -1, 1, 13, 2, Q("6.774819 mm")))
sketch1.addConstraint(Sketcher.Constraint("DistanceY", -1, 1, 15, 2, Q("11.439949 mm")))
sketch1.addConstraint(Sketcher.Constraint("DistanceX", -1, 1, 18, 2, Q("2.08403 mm")))
sketch1.addConstraint(Sketcher.Constraint("DistanceX", 43, 2, -1, 1, Q("11.970158 mm")))
sketch1.addConstraint(Sketcher.Constraint("DistanceY", -1, 1, 45, 2, Q("0.609031 mm")))
sketch1.addConstraint(Sketcher.Constraint("DistanceY", 50, 2, -1, 1, Q("3.18493 mm")))
sketch1.addConstraint(Sketcher.Constraint("DistanceX", -1, 1, 4, 3, Q("7.819383 mm")))
sketch1.addConstraint(Sketcher.Constraint("DistanceX", -1, 1, 6, 3, Q("12.595507 mm")))
sketch1.addConstraint(Sketcher.Constraint("DistanceX", -1, 1, 8, 3, Q("5.026933 mm")))
sketch1.addConstraint(Sketcher.Constraint("DistanceX", 16, 3, -1, 1, Q("1.310243 mm")))
sketch1.addConstraint(Sketcher.Constraint("DistanceX", 46, 3, -1, 1, Q("11.785732 mm")))
sketch1.addConstraint(Sketcher.Constraint("DistanceX", 48, 3, -1, 1, Q("11.040177 mm")))
sketch1.setExpression("Constraints[146]", "Params.sketch1_radius")
sketch1.setExpression("Constraints[147]", "Params.sketch1_diameter")
sketch1.setExpression("Constraints[148]", "Params.sketch1_radius2")
sketch1.setExpression("Constraints[149]", "Params.sketch1_radius3")
sketch1.setExpression("Constraints[150]", "Params.sketch1_radius4")
pad1 = body.newObject("PartDesign::Pad", "Pad")
pad1.Profile = sketch1
pad1.setExpression("Length", "Params.pad1_length")

doc.recompute()
